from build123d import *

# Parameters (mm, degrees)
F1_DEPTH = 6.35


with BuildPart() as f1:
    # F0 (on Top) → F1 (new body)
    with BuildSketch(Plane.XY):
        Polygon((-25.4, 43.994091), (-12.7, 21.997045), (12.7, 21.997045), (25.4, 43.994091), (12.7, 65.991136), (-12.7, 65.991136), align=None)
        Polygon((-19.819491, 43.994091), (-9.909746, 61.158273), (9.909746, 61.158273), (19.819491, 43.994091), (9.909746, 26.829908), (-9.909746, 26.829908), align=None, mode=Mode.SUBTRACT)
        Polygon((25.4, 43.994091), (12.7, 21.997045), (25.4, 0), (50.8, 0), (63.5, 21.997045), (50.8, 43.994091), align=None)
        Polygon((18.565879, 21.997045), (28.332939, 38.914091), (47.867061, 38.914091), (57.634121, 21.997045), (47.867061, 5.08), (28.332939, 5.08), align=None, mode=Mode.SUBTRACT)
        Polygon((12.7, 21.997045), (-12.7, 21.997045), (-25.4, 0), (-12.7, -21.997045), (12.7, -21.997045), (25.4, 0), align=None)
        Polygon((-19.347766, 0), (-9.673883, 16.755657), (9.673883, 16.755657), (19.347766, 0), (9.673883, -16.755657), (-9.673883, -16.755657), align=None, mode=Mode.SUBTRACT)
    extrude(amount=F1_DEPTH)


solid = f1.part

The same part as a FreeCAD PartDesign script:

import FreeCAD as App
import Part
import Sketcher
from FreeCAD import Vector
Q = App.Units.Quantity


def add_polygon(sketch, points):
    """Adds a closed chain of lines whose ends are joined by coincident constraints."""
    first, n = sketch.GeometryCount, len(points)
    for a, b in zip(points, points[1:] + points[:1]):
        sketch.addGeometry(Part.LineSegment(App.Vector(*a, 0), App.Vector(*b, 0)), False)
    for i in range(n):
        sketch.addConstraint(Sketcher.Constraint("Coincident", first + i, 2, first + (i + 1) % n, 1))

doc = App.newDocument("Part")
body = doc.addObject("PartDesign::Body", "Body")

# Sketch on XY plane
sketch1 = doc.addObject("Sketcher::SketchObject", "Sketch")
body.addObject(sketch1)
sketch1.AttachmentSupport = (doc.XY_Plane, [""])
sketch1.MapMode = "FlatFace"
add_polygon(sketch1, [(-25.4, 43.994091), (-12.7, 21.997045), (-25.4, 0), (-12.7, -21.997045), (12.7, -21.997045), (25.4, 0), (50.8, 0), (63.5, 21.997045), (50.8, 43.994091), (25.4, 43.994091), (12.7, 65.991136), (-12.7, 65.991136)])  # lines 0-11
add_polygon(sketch1, [(-9.673883, -16.755657), (-19.347766, 0), (-9.673883, 16.755657), (9.673883, 16.755657), (19.347766, 0), (9.673883, -16.755657)])  # lines 12-17
add_polygon(sketch1, [(28.332939, 5.08), (18.565879, 21.997045), (28.332939, 38.914091), (47.867061, 38.914091), (57.634121, 21.997045), (47.867061, 5.08)])  # lines 18-23
add_polygon(sketch1, [(-9.909746, 26.829908), (-19.819491, 43.994091), (-9.909746, 61.158273), (9.909746, 61.158273), (19.819491, 43.994091), (9.909746, 26.829908)])  # lines 24-29
sketch1.addConstraint([
    Sketcher.Constraint("Horizontal", 3),
    Sketcher.Constraint("Horizontal", 5),
    Sketcher.Constraint("Horizontal", 8),
    Sketcher.Constraint("Horizontal", 10),
    Sketcher.Constraint("Horizontal", 14),
    Sketcher.Constraint("Horizontal", 17),
    Sketcher.Constraint("Horizontal", 20),
    Sketcher.Constraint("Horizontal", 23),
    Sketcher.Constraint("Horizontal", 26),
    Sketcher.Constraint("Horizontal", 29),
    Sketcher.Constraint("Symmetric", 0, 2, 3, 2, -1, 1),
    Sketcher.Constraint("Symmetric", 1, 2, 4, 2, -1, 1),
    Sketcher.Constraint("Symmetric", 12, 2, 15, 2, -1, 1),
    Sketcher.Constraint("Symmetric", 13, 2, 16, 2, -1, 1),
    Sketcher.Constraint("Symmetric", 8, 2, 11, 2, -2),
    Sketcher.Constraint("Symmetric", 24, 2, 27, 2, -2),
    Sketcher.Constraint("PointOnObject", 1, 2, -1),
    Sketcher.Constraint("PointOnObject", 12, 2, -1),
    Sketcher.Constraint("Parallel", 0, 2),
    Sketcher.Constraint("Parallel", 4, 6),
    Sketcher.Constraint("Parallel", 2, 7),
    Sketcher.Constraint("Parallel", 7, 9),
    Sketcher.Constraint("Parallel", 6, 11),
    Sketcher.Constraint("Parallel", 9, 12),
    Sketcher.Constraint("Parallel", 11, 13),
    Sketcher.Constraint("Parallel", 12, 15),
    Sketcher.Constraint("Parallel", 15, 18),
    Sketcher.Constraint("Parallel", 16, 19),
    Sketcher.Constraint("Parallel", 18, 21),
    Sketcher.Constraint("Parallel", 19, 22),
    Sketcher.Constraint("Parallel", 21, 24),
    Sketcher.Constraint("Parallel", 22, 25),
    Sketcher.Constraint("Parallel", 24, 27),
    Sketcher.Constraint("Parallel", 25, 28),
    Sketcher.Constraint("Horizontal", 0, 2, 6, 2),
    Sketcher.Constraint("Horizontal", 6, 2, 18, 2),
    Sketcher.Constraint("Horizontal", 18, 2, 21, 2),
    Sketcher.Constraint("Horizontal", 11, 2, 24, 2),
    Sketcher.Constraint("Vertical", 0, 2, 2, 2),
    Sketcher.Constraint("Vertical", 5, 2, 7, 2),
    Sketcher.Constraint("Vertical", 3, 2, 9, 2),
    Sketcher.Constraint("Vertical", 20, 2, 22, 2),
    Sketcher.Constraint("Vertical", 26, 2, 28, 2),
    Sketcher.Constraint("Equal", 3, 5),
    Sketcher.Constraint("DistanceX", 3, 1, 3, 2, Q("1 in")),
    Sketcher.Constraint("Distance", 0, Q("1 in")),
    Sketcher.Constraint("DistanceX", 1, 2, -1, 1, Q("1 in")),
    Sketcher.Constraint("DistanceY", -1, 1, 22, 2, Q("0.2 in")),
    Sketcher.Constraint("DistanceX", 20, 1, 20, 2, Q("19.534122 mm")),
    Sketcher.Constraint("Distance", 24, Q("19.819491 mm")),
    Sketcher.Constraint("DistanceX", 14, 1, 14, 2, Q("19.347766 mm")),
    Sketcher.Constraint("DistanceX", 26, 1, 26, 2, Q("19.819492 mm")),
    Sketcher.Constraint("DistanceX", -1, 1, 18, 2, Q("18.565879 mm")),
    Sketcher.Constraint("DistanceY", 13, 2, 0, 2, Q("5.241388 mm")),
])
pad1 = doc.addObject("PartDesign::Pad", "Pad")
body.addObject(pad1)
pad1.Profile = sketch1
pad1.Length = Q("0.25 in")

doc.recompute()
